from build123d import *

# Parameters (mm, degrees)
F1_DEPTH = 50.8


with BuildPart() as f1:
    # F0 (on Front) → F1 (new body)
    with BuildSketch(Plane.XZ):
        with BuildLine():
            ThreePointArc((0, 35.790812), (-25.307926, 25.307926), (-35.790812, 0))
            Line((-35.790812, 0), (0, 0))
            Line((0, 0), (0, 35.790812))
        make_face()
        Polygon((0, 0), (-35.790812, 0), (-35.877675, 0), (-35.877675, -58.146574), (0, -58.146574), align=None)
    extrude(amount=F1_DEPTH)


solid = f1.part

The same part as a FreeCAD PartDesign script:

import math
import FreeCAD as App
import Part
import Sketcher
from FreeCAD import Vector
Q = App.Units.Quantity

doc = App.newDocument("Part")
body = doc.addObject("PartDesign::Body", "Body")

sketch1 = body.newObject("Sketcher::SketchObject", "Sketch")
sketch1.AttachmentSupport = (doc.getObject("XZ_Plane"), [""])
sketch1.MapMode = "FlatFace"
sketch1.addGeometry([
    Part.ArcOfCircle(Part.Circle(Vector(0, 0, 0), Vector(0, 0, 1), 35.79), math.radians(90), math.radians(180)),
    Part.LineSegment(Vector(-35.79, 0, 0), Vector(-35.88, 0, 0)),
    Part.LineSegment(Vector(-35.88, 0, 0), Vector(-35.88, -58.15, 0)),
    Part.LineSegment(Vector(-35.88, -58.15, 0), Vector(0, -58.15, 0)),
    Part.LineSegment(Vector(0, -58.15, 0), Vector(0, 35.79, 0)),
], False)
sketch1.addConstraint([
    Sketcher.Constraint("Coincident", 0, 2, 1, 1),
    Sketcher.Constraint("Coincident", 1, 2, 2, 1),
    Sketcher.Constraint("Coincident", 2, 2, 3, 1),
    Sketcher.Constraint("Coincident", 3, 2, 4, 1),
    Sketcher.Constraint("Coincident", 4, 2, 0, 1),
    Sketcher.Constraint("Horizontal", 1),
    Sketcher.Constraint("Vertical", 2),
    Sketcher.Constraint("Horizontal", 3),
    Sketcher.Constraint("Vertical", 4),
    Sketcher.Constraint("Coincident", 0, 3, -1, 1),
    Sketcher.Constraint("PointOnObject", 0, 2, -1),
    Sketcher.Constraint("PointOnObject", 3, 2, -2),
    Sketcher.Constraint("Radius", 0, Q("35.790812 mm")),
    Sketcher.Constraint("DistanceX", 1, 2, 1, 1, Q("0.086863 mm")),
    Sketcher.Constraint("DistanceY", 2, 2, 2, 1, Q("58.146574 mm")),
])
pad1 = body.newObject("PartDesign::Pad", "Pad")
pad1.Profile = sketch1
pad1.Length = Q("2 in")

doc.recompute()
